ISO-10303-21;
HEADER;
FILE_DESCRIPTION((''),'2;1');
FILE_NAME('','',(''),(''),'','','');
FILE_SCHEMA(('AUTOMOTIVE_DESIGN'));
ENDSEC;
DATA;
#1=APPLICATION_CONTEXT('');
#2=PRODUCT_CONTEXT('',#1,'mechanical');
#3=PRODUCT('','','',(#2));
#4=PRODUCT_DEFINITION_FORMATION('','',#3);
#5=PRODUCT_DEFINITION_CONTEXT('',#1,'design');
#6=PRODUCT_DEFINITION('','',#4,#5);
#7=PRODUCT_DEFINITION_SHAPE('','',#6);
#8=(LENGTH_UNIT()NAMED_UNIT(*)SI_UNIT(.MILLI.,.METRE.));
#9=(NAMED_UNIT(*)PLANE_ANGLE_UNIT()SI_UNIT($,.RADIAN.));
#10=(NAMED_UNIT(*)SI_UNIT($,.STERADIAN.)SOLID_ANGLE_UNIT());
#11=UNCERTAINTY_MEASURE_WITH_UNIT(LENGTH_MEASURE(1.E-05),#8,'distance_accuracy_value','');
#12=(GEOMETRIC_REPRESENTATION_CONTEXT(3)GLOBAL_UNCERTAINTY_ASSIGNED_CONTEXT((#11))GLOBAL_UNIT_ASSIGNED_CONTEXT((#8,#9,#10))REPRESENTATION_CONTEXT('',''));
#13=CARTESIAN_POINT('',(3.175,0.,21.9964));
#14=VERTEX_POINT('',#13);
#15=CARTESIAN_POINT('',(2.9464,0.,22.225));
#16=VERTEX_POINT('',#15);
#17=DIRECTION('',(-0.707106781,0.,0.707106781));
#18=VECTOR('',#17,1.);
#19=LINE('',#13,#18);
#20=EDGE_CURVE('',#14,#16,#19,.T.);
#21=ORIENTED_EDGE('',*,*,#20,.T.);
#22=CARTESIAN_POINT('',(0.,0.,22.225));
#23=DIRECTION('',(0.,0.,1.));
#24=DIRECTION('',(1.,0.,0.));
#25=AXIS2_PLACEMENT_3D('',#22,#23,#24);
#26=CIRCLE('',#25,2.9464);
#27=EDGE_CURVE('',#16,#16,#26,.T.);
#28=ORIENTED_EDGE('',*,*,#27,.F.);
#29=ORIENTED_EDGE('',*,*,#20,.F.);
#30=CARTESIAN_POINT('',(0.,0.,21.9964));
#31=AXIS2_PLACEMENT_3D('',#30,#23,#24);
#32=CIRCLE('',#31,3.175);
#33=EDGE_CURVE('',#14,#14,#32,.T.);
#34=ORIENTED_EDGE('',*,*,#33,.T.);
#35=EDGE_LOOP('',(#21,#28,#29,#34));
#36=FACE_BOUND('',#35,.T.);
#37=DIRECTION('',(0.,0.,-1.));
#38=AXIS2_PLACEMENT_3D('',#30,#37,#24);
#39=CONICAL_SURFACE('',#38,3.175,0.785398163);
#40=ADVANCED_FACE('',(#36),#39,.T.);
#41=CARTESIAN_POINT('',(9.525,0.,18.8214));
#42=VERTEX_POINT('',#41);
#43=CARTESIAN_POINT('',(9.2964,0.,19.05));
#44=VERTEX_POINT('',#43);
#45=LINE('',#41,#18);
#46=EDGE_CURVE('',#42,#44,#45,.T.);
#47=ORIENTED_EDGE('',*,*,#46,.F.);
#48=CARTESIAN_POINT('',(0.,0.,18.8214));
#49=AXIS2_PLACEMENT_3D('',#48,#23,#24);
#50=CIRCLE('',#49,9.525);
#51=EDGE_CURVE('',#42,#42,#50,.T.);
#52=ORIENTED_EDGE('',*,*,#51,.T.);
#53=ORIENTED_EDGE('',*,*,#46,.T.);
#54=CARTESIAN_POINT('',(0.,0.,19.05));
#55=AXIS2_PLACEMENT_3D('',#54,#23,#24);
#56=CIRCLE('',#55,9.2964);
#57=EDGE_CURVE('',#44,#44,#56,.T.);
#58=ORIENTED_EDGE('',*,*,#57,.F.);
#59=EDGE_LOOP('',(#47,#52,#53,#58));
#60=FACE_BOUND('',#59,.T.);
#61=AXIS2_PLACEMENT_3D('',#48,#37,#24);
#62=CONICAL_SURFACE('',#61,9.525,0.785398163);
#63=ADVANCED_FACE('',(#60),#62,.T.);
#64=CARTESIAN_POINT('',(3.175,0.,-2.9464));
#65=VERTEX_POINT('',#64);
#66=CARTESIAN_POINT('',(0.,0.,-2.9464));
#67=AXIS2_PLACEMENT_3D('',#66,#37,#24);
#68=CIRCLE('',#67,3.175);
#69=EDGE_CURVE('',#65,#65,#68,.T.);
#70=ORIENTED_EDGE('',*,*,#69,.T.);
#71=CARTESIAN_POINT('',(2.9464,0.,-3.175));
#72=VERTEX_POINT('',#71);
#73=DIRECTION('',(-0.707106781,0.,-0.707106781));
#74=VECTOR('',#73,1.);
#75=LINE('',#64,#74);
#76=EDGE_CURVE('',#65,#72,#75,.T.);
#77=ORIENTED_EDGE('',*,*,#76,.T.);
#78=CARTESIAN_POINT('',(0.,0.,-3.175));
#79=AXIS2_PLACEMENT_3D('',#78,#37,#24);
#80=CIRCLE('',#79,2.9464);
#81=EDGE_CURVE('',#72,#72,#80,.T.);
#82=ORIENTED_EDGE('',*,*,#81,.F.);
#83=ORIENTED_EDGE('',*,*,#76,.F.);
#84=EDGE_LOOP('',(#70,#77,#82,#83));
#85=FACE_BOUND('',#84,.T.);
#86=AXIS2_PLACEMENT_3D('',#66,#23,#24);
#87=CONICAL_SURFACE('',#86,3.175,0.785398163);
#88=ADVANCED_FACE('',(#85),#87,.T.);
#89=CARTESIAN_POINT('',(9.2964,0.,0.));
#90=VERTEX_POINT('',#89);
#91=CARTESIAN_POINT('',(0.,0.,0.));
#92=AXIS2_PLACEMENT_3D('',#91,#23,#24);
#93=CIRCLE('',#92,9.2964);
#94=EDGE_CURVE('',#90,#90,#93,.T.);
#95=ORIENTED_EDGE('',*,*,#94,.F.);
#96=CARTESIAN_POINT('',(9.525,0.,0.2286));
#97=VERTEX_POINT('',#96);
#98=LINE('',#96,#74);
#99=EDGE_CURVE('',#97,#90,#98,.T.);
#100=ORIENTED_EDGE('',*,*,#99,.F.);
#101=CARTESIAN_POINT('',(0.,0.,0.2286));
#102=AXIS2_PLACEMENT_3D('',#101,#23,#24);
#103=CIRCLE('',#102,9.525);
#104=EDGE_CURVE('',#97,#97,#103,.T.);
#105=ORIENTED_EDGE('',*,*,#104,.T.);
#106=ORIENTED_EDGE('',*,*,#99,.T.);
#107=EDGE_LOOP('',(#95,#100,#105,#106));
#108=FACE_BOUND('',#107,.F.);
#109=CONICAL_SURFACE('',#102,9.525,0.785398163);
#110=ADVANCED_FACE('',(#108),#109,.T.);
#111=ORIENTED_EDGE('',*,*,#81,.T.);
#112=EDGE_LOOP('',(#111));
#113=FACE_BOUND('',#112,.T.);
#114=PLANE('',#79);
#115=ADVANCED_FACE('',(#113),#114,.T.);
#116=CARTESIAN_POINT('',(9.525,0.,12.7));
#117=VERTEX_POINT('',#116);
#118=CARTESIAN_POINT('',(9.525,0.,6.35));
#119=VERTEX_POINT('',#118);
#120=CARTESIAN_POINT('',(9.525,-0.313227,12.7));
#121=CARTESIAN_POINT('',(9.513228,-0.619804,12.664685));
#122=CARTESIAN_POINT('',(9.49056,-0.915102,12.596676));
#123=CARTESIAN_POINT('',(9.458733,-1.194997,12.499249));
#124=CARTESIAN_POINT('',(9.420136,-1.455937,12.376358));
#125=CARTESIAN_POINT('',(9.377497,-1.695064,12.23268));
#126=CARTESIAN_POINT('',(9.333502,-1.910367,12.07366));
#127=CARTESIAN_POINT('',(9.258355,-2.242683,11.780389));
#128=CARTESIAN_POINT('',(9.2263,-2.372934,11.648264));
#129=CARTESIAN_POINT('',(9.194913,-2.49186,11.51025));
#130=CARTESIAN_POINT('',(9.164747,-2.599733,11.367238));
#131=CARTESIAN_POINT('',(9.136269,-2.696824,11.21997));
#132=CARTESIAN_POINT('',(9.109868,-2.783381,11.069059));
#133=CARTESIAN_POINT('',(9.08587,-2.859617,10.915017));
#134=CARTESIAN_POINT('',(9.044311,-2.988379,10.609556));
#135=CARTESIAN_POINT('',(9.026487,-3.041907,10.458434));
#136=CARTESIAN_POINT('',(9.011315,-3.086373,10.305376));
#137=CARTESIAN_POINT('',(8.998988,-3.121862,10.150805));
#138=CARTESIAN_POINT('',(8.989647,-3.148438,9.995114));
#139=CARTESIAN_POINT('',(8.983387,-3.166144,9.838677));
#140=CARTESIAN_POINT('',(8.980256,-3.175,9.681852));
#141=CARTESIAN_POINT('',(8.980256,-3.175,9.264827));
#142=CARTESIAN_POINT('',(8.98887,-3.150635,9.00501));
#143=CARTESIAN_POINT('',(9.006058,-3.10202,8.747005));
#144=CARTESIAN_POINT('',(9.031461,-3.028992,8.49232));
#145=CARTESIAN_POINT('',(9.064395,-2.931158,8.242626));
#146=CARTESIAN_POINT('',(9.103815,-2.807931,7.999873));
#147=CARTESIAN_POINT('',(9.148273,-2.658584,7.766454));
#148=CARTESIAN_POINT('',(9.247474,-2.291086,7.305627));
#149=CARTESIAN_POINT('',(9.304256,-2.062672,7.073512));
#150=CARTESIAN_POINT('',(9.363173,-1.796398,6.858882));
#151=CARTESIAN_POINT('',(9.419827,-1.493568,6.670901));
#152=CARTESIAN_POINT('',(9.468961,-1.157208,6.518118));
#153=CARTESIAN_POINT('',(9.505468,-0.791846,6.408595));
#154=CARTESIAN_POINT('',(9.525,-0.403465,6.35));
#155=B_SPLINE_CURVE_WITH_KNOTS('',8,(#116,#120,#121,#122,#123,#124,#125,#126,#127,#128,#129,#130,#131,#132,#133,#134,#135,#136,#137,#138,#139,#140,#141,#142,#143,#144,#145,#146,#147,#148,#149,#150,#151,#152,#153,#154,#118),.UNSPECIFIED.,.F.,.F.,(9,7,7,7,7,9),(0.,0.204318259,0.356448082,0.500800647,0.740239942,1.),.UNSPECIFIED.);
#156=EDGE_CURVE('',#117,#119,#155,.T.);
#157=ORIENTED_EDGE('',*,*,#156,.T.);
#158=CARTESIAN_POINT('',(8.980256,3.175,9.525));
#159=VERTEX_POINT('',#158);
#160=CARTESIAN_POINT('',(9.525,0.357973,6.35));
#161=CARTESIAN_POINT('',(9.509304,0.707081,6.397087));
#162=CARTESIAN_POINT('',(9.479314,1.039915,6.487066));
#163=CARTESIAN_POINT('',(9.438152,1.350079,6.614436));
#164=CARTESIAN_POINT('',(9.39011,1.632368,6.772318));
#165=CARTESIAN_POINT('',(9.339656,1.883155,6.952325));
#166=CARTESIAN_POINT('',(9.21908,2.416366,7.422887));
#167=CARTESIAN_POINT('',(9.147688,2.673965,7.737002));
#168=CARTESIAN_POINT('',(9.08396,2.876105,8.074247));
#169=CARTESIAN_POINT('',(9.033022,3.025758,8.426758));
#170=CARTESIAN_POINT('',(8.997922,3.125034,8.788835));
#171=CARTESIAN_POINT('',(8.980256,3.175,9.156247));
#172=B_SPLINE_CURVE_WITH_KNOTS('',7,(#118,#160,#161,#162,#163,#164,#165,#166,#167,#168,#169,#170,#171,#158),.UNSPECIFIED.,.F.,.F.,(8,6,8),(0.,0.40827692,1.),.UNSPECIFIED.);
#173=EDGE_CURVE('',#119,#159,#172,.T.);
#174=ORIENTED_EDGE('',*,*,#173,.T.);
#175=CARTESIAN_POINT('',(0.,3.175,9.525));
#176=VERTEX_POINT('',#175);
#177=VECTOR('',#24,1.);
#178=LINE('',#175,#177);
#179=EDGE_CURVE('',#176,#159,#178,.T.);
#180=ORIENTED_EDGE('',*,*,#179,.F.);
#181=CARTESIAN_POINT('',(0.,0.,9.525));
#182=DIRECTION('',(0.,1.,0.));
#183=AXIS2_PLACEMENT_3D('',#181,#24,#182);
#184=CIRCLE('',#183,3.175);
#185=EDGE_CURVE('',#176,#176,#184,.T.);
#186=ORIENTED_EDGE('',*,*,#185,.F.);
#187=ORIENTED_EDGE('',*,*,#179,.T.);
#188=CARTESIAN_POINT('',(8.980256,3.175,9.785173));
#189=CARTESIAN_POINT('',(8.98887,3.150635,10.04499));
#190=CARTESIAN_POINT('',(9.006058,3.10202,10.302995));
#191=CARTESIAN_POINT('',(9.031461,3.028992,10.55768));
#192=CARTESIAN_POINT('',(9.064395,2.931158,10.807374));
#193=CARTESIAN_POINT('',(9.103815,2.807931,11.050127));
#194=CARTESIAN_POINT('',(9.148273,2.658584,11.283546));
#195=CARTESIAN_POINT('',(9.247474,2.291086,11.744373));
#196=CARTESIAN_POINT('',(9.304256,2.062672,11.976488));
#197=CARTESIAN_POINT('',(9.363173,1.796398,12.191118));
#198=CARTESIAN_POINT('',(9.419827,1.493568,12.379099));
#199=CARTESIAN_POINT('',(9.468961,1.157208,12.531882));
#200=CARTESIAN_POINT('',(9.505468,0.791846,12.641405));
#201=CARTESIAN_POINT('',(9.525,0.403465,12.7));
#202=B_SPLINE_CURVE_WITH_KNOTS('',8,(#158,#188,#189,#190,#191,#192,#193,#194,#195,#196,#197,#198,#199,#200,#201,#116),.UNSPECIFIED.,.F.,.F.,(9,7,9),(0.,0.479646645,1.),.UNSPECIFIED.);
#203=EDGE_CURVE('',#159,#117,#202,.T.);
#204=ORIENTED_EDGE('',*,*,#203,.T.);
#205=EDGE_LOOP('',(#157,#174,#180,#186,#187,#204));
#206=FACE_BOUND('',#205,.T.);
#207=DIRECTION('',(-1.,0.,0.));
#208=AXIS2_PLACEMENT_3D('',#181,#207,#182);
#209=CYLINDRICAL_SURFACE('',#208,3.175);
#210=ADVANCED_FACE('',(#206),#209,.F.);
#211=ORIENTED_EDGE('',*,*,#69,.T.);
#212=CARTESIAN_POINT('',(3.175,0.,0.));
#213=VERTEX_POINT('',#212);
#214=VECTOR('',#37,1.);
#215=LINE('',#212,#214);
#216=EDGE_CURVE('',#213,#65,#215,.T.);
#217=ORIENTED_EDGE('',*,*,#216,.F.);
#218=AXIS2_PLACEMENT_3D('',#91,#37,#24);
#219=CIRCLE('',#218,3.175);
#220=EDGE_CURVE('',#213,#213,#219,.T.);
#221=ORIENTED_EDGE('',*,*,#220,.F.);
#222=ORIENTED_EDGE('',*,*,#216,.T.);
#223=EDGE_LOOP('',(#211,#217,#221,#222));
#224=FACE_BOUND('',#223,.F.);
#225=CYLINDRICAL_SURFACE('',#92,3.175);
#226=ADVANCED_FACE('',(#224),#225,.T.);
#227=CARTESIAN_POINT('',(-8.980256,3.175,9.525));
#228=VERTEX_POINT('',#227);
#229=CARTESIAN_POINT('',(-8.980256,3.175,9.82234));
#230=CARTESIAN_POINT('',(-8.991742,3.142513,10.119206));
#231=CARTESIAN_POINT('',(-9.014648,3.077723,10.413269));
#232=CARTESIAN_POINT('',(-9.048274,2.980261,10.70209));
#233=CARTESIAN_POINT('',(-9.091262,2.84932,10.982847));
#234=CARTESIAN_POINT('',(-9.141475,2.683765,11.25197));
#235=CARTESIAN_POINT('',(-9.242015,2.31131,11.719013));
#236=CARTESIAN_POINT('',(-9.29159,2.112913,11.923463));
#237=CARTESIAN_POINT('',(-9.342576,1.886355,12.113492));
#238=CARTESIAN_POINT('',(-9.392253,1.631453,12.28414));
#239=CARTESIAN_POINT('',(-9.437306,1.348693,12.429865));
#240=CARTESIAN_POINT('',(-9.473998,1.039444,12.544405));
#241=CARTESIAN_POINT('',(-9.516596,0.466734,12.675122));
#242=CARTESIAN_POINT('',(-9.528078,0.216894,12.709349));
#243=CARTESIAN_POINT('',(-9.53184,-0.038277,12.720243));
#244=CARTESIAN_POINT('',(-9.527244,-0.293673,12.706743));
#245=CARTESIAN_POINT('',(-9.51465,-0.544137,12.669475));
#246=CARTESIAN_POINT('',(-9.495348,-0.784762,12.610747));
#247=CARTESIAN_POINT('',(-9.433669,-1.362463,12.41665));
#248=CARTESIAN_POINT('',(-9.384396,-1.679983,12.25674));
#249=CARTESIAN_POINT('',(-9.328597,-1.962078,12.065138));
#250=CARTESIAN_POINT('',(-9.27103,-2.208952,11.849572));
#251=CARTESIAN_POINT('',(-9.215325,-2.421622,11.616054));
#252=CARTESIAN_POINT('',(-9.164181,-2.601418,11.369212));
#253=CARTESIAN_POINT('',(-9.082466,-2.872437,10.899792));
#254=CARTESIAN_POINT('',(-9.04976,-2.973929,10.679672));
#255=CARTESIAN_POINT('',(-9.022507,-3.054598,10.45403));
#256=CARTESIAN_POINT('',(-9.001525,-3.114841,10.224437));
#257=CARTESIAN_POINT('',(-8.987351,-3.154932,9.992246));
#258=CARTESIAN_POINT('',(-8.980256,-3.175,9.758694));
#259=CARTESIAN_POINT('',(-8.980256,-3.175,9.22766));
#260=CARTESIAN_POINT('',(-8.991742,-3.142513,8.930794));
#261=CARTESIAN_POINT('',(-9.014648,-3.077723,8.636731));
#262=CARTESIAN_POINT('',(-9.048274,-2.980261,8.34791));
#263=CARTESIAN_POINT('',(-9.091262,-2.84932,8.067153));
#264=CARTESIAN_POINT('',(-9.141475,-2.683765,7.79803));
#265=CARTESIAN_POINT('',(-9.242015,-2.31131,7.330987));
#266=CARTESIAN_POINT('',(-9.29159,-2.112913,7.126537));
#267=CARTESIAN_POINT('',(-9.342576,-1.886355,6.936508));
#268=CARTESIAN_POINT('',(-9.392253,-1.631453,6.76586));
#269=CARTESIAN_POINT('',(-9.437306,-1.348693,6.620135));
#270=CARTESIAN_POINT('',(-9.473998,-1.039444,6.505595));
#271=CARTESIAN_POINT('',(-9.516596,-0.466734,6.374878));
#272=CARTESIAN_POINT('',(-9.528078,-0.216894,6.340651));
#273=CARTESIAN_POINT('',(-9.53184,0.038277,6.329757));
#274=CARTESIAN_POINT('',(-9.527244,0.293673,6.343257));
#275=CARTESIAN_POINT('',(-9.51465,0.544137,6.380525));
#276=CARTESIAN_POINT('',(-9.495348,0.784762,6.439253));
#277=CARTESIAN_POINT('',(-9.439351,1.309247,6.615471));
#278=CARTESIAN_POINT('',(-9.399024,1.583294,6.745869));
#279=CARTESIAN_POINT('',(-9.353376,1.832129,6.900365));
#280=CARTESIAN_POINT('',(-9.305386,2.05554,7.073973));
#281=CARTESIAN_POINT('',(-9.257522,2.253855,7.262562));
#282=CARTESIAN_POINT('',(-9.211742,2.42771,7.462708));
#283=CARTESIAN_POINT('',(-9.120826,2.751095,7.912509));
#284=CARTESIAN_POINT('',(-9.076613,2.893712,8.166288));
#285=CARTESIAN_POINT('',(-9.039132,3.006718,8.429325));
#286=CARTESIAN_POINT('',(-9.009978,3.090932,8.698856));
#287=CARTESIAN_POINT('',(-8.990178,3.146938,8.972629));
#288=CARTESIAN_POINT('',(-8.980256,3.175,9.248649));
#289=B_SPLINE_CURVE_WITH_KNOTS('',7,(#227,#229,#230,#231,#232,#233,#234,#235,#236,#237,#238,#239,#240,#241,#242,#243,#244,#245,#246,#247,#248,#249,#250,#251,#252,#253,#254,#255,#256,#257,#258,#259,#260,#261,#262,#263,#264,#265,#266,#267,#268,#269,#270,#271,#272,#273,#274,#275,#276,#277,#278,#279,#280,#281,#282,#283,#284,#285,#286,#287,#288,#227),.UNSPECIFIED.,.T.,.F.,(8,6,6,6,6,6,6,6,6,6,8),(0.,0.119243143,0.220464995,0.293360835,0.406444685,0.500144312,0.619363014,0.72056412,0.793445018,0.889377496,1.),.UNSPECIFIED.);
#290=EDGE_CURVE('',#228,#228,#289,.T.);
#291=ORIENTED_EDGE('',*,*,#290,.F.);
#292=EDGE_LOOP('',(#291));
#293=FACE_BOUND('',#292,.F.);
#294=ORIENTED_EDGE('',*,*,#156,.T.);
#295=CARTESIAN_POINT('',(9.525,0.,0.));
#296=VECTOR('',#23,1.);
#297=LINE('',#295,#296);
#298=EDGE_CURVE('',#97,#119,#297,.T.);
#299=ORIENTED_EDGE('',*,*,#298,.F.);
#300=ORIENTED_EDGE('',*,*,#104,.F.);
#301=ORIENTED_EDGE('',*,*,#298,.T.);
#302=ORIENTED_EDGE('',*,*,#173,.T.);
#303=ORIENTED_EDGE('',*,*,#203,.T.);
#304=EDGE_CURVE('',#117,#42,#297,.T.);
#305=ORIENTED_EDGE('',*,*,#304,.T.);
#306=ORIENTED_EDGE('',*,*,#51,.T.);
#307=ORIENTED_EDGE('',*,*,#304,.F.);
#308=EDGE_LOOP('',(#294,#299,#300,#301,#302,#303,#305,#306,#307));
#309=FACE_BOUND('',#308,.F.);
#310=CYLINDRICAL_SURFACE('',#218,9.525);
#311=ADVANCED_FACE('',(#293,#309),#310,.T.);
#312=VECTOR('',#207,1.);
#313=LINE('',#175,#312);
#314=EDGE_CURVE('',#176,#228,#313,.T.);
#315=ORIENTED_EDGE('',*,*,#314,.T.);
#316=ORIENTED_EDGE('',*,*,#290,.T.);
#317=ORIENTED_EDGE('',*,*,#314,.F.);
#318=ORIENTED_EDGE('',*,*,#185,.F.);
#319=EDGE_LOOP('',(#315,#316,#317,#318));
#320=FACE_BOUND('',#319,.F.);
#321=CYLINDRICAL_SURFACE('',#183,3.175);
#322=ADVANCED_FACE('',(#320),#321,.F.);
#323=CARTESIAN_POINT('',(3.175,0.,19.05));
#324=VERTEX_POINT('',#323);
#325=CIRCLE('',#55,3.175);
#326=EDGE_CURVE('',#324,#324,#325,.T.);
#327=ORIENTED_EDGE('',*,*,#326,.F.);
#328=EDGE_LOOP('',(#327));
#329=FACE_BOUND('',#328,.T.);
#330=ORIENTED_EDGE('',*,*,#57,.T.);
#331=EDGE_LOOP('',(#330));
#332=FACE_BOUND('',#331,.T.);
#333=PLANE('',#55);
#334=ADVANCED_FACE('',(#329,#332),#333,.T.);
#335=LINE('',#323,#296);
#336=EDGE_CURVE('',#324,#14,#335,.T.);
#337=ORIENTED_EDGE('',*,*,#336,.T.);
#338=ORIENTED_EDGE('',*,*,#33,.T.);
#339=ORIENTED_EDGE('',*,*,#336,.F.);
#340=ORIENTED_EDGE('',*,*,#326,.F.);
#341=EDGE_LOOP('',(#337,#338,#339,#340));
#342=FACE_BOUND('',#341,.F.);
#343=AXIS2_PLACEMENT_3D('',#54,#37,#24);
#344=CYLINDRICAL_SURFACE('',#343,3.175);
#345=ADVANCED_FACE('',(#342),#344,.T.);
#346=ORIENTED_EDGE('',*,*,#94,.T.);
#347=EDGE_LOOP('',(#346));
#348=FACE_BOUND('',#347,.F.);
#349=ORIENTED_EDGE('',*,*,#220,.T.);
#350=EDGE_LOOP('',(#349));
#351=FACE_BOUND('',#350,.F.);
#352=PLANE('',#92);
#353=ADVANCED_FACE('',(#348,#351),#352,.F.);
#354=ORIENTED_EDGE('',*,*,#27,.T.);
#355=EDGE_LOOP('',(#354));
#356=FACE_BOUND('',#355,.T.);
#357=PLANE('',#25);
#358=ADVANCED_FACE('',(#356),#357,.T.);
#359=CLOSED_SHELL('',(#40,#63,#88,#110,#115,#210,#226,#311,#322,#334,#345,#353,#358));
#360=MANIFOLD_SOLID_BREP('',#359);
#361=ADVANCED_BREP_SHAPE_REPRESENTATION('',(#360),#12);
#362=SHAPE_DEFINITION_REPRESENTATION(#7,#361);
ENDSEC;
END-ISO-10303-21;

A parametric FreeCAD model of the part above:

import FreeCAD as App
import Part
import Sketcher
Q = App.Units.Quantity


def edges_at(feature, points):
    """Names of the edges that pass closest to the given points."""
    edges = feature.Shape.Edges
    near = lambda p: min(range(len(edges)), key=lambda i: edges[i].distToShape(Part.Vertex(*p))[0])
    return sorted({f"Edge{near(p) + 1}" for p in points})

doc = App.newDocument("Part")
body = doc.addObject("PartDesign::Body", "Body")

sketch1 = body.newObject("Sketcher::SketchObject", "Sketch")
sketch1.AttachmentSupport = (doc.getObject("XY_Plane"), [""])
sketch1.MapMode = "FlatFace"
sketch1.addGeometry(Part.Circle(App.Vector(0, 0, 0), App.Vector(0, 0, 1), 10), False)
sketch1.addConstraint([
    Sketcher.Constraint("Coincident", 0, 3, -1, 1),
    Sketcher.Constraint("Diameter", 0, Q("0.75 in")),
])
pad1 = body.newObject("PartDesign::Pad", "Pad")
pad1.Profile = sketch1
pad1.Length = Q("0.75 in")

sketch2 = body.newObject("Sketcher::SketchObject", "Sketch001")
sketch2.AttachmentSupport = (doc.getObject("XY_Plane"), [""])
sketch2.MapMode = "FlatFace"
sketch2.AttachmentOffset = App.Placement(App.Vector(0, 0, 0.75 * 25.4), App.Rotation())
sketch2.addGeometry(Part.Circle(App.Vector(0, 0, 0), App.Vector(0, 0, 1), 3.2), False)
sketch2.addConstraint([
    Sketcher.Constraint("Coincident", 0, 3, -1, 1),
    Sketcher.Constraint("Diameter", 0, Q("0.25 in")),
])
pad2 = body.newObject("PartDesign::Pad", "Pad001")
pad2.Profile = sketch2
pad2.Length = Q("0.125 in")

sketch3 = body.newObject("Sketcher::SketchObject", "Sketch002")
sketch3.AttachmentSupport = (doc.getObject("XY_Plane"), [""])
sketch3.MapMode = "FlatFace"
sketch3.addGeometry(Part.Circle(App.Vector(0, 0, 0), App.Vector(0, 0, 1), 3.2), False)
sketch3.addConstraint([
    Sketcher.Constraint("Coincident", 0, 3, -1, 1),
    Sketcher.Constraint("Diameter", 0, Q("0.25 in")),
])
pad3 = body.newObject("PartDesign::Pad", "Pad002")
pad3.Profile = sketch3
pad3.Length = Q("0.125 in")
pad3.Reversed = True

sketch4 = body.newObject("Sketcher::SketchObject", "Sketch003")
sketch4.AttachmentSupport = (doc.getObject("YZ_Plane"), [""])
sketch4.MapMode = "FlatFace"
sketch4.addGeometry(Part.Circle(App.Vector(0, 9.5, 0), App.Vector(0, 0, 1), 3.2), False)
sketch4.addConstraint([
    Sketcher.Constraint("PointOnObject", 0, 3, -2),
    Sketcher.Constraint("Diameter", 0, Q("0.25 in")),
    Sketcher.Constraint("DistanceY", -1, 1, 0, 3, Q("0.375 in")),
])
pocket1 = body.newObject("PartDesign::Pocket", "Pocket")
pocket1.Profile = sketch4
pocket1.Type = "ThroughAll"
pocket1.Midplane = True
doc.recompute()

chamfer = body.newObject("PartDesign::Chamfer", "Chamfer")
chamfer.Base = (pocket1, edges_at(pocket1, [
    (-3.175, 0, 22.225),
    (-9.525, 0, 19.05),
    (-3.175, 0, -3.175),
    (-9.525, 0, 0),
]))
chamfer.Size = Q("0.009 in")

doc.recompute()
